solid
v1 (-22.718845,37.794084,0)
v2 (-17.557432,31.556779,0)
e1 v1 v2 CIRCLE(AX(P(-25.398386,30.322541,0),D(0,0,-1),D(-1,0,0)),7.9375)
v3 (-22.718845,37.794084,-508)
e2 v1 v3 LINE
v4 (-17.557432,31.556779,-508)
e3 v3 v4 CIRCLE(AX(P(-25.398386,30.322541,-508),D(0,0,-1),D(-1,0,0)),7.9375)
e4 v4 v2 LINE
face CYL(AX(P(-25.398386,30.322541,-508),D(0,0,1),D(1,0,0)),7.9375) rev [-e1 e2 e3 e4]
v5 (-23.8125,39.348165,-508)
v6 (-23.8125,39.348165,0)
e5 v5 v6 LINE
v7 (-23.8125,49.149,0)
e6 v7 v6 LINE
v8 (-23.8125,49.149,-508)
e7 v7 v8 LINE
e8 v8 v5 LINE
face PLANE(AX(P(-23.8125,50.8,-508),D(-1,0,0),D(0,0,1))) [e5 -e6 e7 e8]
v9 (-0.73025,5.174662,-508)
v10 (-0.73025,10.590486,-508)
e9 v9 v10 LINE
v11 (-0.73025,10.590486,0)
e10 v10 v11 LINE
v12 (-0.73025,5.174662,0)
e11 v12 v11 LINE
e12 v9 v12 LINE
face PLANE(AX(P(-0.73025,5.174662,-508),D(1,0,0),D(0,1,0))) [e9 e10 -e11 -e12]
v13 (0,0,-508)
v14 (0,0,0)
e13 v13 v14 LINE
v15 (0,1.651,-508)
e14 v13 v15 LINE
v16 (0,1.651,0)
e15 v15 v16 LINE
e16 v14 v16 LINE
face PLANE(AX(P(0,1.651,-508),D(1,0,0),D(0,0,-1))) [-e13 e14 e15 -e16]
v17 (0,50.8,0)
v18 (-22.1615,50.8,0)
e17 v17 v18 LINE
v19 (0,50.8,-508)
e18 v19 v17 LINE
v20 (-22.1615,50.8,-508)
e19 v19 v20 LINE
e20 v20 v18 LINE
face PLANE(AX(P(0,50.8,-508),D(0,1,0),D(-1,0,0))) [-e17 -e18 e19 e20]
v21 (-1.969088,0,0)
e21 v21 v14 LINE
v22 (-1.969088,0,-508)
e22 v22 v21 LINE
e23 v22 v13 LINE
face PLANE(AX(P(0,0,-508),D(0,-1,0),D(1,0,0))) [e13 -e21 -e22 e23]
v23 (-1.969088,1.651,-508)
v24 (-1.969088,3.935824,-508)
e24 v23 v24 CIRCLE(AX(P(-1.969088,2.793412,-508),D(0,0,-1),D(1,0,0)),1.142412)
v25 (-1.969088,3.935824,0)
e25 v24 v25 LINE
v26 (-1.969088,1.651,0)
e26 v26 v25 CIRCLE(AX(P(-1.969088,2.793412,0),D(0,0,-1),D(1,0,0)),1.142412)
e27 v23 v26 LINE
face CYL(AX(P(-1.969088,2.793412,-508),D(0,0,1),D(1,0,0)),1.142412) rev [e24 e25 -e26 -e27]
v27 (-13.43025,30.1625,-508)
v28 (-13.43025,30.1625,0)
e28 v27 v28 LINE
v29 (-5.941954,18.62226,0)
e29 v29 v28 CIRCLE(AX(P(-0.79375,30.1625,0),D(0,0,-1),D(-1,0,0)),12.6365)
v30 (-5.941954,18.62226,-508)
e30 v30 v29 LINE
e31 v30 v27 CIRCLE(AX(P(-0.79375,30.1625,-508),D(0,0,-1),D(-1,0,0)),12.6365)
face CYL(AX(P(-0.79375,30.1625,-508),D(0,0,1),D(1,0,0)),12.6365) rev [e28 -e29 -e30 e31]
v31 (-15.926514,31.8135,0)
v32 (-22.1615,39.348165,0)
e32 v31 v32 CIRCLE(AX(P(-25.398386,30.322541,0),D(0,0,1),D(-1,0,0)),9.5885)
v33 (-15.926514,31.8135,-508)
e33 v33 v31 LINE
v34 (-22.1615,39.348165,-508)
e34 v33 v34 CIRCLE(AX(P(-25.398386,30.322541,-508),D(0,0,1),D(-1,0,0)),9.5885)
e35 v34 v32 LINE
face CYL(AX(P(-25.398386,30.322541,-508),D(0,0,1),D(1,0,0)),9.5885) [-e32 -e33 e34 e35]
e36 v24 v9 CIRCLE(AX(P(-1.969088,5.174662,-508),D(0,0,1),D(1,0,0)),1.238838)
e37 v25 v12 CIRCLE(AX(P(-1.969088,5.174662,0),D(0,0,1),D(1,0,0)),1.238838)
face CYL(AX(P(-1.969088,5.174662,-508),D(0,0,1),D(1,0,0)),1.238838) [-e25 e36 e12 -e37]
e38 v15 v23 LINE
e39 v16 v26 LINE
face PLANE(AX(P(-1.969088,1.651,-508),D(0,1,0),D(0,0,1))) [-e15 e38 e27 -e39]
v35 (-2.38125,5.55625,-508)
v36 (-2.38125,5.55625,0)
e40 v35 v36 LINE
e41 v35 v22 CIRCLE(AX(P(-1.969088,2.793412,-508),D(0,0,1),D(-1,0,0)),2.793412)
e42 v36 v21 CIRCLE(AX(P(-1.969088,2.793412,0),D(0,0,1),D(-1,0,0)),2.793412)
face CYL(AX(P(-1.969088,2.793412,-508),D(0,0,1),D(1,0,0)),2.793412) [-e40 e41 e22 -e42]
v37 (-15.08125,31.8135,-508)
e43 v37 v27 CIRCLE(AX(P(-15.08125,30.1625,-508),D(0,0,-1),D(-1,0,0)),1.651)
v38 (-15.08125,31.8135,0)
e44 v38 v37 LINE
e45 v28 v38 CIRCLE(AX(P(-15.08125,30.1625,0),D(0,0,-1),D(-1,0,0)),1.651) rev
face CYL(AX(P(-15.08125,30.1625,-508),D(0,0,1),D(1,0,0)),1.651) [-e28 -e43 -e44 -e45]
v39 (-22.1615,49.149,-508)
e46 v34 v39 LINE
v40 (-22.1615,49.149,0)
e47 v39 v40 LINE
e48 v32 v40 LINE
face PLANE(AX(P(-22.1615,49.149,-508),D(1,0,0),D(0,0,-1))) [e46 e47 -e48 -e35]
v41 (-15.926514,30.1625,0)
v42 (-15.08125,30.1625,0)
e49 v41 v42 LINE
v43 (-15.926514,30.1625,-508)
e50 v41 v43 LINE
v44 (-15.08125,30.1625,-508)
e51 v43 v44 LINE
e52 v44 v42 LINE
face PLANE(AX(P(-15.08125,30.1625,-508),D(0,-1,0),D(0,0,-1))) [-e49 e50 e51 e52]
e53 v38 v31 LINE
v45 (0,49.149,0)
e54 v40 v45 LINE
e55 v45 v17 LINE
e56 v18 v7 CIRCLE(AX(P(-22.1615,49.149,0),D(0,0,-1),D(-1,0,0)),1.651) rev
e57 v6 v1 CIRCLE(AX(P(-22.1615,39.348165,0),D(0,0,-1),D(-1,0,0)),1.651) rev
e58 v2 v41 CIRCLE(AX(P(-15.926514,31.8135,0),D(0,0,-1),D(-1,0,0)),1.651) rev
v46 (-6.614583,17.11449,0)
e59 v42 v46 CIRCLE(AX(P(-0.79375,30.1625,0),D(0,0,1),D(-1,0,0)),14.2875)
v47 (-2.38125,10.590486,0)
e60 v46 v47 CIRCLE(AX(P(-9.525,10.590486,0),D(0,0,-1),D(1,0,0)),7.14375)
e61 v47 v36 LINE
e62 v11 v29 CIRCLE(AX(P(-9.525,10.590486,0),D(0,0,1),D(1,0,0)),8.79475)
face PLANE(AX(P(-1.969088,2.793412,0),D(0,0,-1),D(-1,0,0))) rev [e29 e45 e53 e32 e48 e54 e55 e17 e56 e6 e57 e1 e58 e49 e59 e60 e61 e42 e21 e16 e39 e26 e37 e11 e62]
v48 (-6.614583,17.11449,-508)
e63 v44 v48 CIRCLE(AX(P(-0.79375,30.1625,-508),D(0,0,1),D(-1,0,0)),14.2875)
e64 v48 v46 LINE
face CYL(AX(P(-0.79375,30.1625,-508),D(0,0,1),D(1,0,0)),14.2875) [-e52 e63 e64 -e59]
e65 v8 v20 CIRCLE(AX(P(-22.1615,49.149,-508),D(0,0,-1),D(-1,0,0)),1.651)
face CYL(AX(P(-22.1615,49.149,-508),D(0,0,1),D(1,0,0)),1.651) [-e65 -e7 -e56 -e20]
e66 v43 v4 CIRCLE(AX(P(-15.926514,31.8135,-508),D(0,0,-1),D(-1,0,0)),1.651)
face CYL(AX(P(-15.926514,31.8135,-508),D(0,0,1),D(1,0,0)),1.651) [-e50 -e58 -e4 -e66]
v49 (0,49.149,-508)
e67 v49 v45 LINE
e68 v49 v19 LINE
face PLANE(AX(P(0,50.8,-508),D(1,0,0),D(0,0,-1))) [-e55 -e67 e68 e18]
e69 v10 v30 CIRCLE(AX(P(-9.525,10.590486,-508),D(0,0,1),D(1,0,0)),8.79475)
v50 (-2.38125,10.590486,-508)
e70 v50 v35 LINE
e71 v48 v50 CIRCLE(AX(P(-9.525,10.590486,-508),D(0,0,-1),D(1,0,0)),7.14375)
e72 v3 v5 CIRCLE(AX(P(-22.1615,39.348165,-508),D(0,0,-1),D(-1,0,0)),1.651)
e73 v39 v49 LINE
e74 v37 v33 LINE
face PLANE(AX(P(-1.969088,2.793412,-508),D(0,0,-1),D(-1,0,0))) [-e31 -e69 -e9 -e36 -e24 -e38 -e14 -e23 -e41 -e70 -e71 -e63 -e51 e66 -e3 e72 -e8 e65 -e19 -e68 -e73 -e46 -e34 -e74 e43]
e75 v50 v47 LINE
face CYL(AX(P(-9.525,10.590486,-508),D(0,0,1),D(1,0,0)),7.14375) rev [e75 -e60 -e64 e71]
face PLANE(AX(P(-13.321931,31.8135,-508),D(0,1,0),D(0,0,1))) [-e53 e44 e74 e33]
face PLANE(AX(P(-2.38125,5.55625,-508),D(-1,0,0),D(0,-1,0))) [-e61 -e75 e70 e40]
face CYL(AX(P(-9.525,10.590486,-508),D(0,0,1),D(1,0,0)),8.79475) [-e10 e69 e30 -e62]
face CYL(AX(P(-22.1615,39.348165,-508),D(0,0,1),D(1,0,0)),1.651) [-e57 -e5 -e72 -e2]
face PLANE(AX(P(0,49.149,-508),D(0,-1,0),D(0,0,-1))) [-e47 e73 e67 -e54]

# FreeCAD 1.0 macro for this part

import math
import FreeCAD as App
import Part
import Sketcher
Q = App.Units.Quantity


def edges_at(feature, points):
    """Names of the edges that pass closest to the given points."""
    edges = feature.Shape.Edges
    near = lambda p: min(range(len(edges)), key=lambda i: edges[i].distToShape(Part.Vertex(*p))[0])
    return sorted({f"Edge{near(p) + 1}" for p in points})

doc = App.newDocument("Part")
body = doc.addObject("PartDesign::Body", "Body")

# Sketch on XY plane
sketch1 = doc.addObject("Sketcher::SketchObject", "Sketch")
body.addObject(sketch1)
sketch1.AttachmentSupport = (doc.XY_Plane, [""])
sketch1.MapMode = "FlatFace"
sketch1.addGeometry([
    Part.LineSegment(App.Vector(-1.969088, 0, 0), App.Vector(0, 0, 0)),  # 0
    Part.LineSegment(App.Vector(0, 0, 0), App.Vector(0, 1.651, 0)),  # 1
    Part.LineSegment(App.Vector(0, 1.651, 0), App.Vector(-1.969088, 1.651, 0)),  # 2
    Part.ArcOfCircle(Part.Circle(App.Vector(-1.969088, 2.793412, 0), App.Vector(0, 0, 1), 1.142412), math.radians(90), math.radians(270)),  # 3
    Part.ArcOfCircle(Part.Circle(App.Vector(-1.969088, 5.174662, 0), App.Vector(0, 0, 1), 1.238838), math.radians(-90), math.radians(0)),  # 4
    Part.LineSegment(App.Vector(-0.73025, 5.174662, 0), App.Vector(-0.73025, 10.590486, 0)),  # 5
    Part.ArcOfCircle(Part.Circle(App.Vector(-9.525, 10.590486, 0), App.Vector(0, 0, 1), 8.79475), math.radians(0), math.radians(65.957924)),  # 6
    Part.ArcOfCircle(Part.Circle(App.Vector(-0.79375, 30.1625, 0), App.Vector(0, 0, 1), 12.6365), math.radians(172.492656), math.radians(245.957924)),  # 7
    Part.LineSegment(App.Vector(-13.321931, 31.8135, 0), App.Vector(-15.926514, 31.8135, 0)),  # 8
    Part.ArcOfCircle(Part.Circle(App.Vector(-25.398386, 30.322541, 0), App.Vector(0, 0, 1), 9.5885), math.radians(8.945477), math.radians(70.270493)),  # 9
    Part.LineSegment(App.Vector(-22.1615, 39.348165, 0), App.Vector(-22.1615, 49.149, 0)),  # 10
    Part.LineSegment(App.Vector(-22.1615, 49.149, 0), App.Vector(0, 49.149, 0)),  # 11
    Part.LineSegment(App.Vector(0, 49.149, 0), App.Vector(0, 50.8, 0)),  # 12
    Part.LineSegment(App.Vector(0, 50.8, 0), App.Vector(-23.8125, 50.8, 0)),  # 13
    Part.LineSegment(App.Vector(-23.8125, 50.8, 0), App.Vector(-23.8125, 38.1, 0)),  # 14
    Part.ArcOfCircle(Part.Circle(App.Vector(-25.398386, 30.322541, 0), App.Vector(0, 0, 1), 7.9375), math.radians(-1.155312), math.radians(78.474928)),  # 15
    Part.LineSegment(App.Vector(-17.4625, 30.1625, 0), App.Vector(-15.08125, 30.1625, 0)),  # 16
    Part.ArcOfCircle(Part.Circle(App.Vector(-0.79375, 30.1625, 0), App.Vector(0, 0, 1), 14.2875), math.radians(-180), math.radians(-114.042076)),  # 17
    Part.ArcOfCircle(Part.Circle(App.Vector(-9.525, 10.590486, 0), App.Vector(0, 0, 1), 7.14375), math.radians(0), math.radians(65.957924)),  # 18
    Part.LineSegment(App.Vector(-2.38125, 10.590486, 0), App.Vector(-2.38125, 5.55625, 0)),  # 19
    Part.ArcOfCircle(Part.Circle(App.Vector(-1.969088, 2.793412, 0), App.Vector(0, 0, 1), 2.793412), math.radians(98.48485), math.radians(270)),  # 20
], False)
sketch1.addConstraint([
    Sketcher.Constraint("Coincident", 0, 2, 1, 1),
    Sketcher.Constraint("Coincident", 1, 2, 2, 1),
    Sketcher.Constraint("Tangent", 2, 2, 3, 2),
    Sketcher.Constraint("Tangent", 3, 1, 4, 1),
    Sketcher.Constraint("Tangent", 4, 2, 5, 1),
    Sketcher.Constraint("Tangent", 5, 2, 6, 1),
    Sketcher.Constraint("Tangent", 6, 2, 7, 2),
    Sketcher.Constraint("Coincident", 7, 1, 8, 1),
    Sketcher.Constraint("Coincident", 8, 2, 9, 1),
    Sketcher.Constraint("Coincident", 9, 2, 10, 1),
    Sketcher.Constraint("Coincident", 10, 2, 11, 1),
    Sketcher.Constraint("Coincident", 11, 2, 12, 1),
    Sketcher.Constraint("Coincident", 12, 2, 13, 1),
    Sketcher.Constraint("Coincident", 13, 2, 14, 1),
    Sketcher.Constraint("Coincident", 14, 2, 15, 2),
    Sketcher.Constraint("Coincident", 15, 1, 16, 1),
    Sketcher.Constraint("Coincident", 16, 2, 17, 1),
    Sketcher.Constraint("Tangent", 17, 2, 18, 2),
    Sketcher.Constraint("Tangent", 18, 1, 19, 1),
    Sketcher.Constraint("Coincident", 19, 2, 20, 1),
    Sketcher.Constraint("Tangent", 20, 2, 0, 1),
    Sketcher.Constraint("Horizontal", 0),
    Sketcher.Constraint("Vertical", 1),
    Sketcher.Constraint("Horizontal", 2),
    Sketcher.Constraint("Vertical", 5),
    Sketcher.Constraint("Horizontal", 8),
    Sketcher.Constraint("Vertical", 10),
    Sketcher.Constraint("Horizontal", 11),
    Sketcher.Constraint("Vertical", 12),
    Sketcher.Constraint("Horizontal", 13),
    Sketcher.Constraint("Vertical", 14),
    Sketcher.Constraint("Horizontal", 16),
    Sketcher.Constraint("Vertical", 19),
    Sketcher.Constraint("Coincident", 0, 2, -1, 1),
    Sketcher.Constraint("Coincident", 15, 3, 9, 3),
    Sketcher.Constraint("Coincident", 17, 3, 7, 3),
    Sketcher.Constraint("Coincident", 18, 3, 6, 3),
    Sketcher.Constraint("Coincident", 20, 3, 3, 3),
    Sketcher.Constraint("PointOnObject", 11, 2, -2),
    Sketcher.Constraint("Horizontal", 17, 3, 15, 1),
    Sketcher.Constraint("Vertical", 3, 3, 4, 3),
    Sketcher.Constraint("Equal", 1, 12),
    Sketcher.Constraint("DistanceY", 14, 2, 14, 1, Q("0.5 in")),
    Sketcher.Constraint("DistanceY", -1, 1, 12, 2, Q("2 in")),
    Sketcher.Constraint("Radius", 15, Q("0.3125 in")),
    Sketcher.Constraint("Radius", 17, Q("0.5625 in")),
    Sketcher.Constraint("Radius", 18, Q("0.28125 in")),
    Sketcher.Constraint("Radius", 7, Q("0.4975 in")),
    Sketcher.Constraint("Radius", 9, Q("0.3775 in")),
    Sketcher.Constraint("DistanceX", 13, 2, 13, 1, Q("0.9375 in")),
    Sketcher.Constraint("DistanceX", 16, 1, 16, 2, Q("0.09375 in")),
    Sketcher.Constraint("DistanceY", 1, 1, 1, 2, Q("0.065 in")),
    Sketcher.Constraint("DistanceX", 14, 2, 15, 1, Q("0.25 in")),
    Sketcher.Constraint("DistanceX", 11, 1, 11, 2, Q("0.8725 in")),
    Sketcher.Constraint("DistanceX", 6, 3, -1, 1, Q("0.375 in")),
    Sketcher.Constraint("DistanceY", -1, 1, 7, 3, Q("1.1875 in")),
    Sketcher.Constraint("DistanceY", -1, 1, 19, 2, Q("0.21875 in")),
    Sketcher.Constraint("DistanceY", 3, 3, 4, 3, Q("0.09375 in")),
    Sketcher.Constraint("DistanceY", 17, 3, 7, 1, Q("0.065 in")),
])
pad1 = doc.addObject("PartDesign::Pad", "Pad")
body.addObject(pad1)
pad1.Profile = sketch1
pad1.Length = Q("20 in")
pad1.Reversed = True
doc.recompute()

fillet = doc.addObject("PartDesign::Fillet", "Fillet")
body.addObject(fillet)
fillet.Base = (pad1, edges_at(pad1, [
    (-17.462, 30.163, -254),
    (-23.812, 38.1, -254),
    (-23.812, 50.8, -254),
    (-13.322, 31.814, -254),
]))
fillet.Radius = Q("0.065 in")

doc.recompute()
